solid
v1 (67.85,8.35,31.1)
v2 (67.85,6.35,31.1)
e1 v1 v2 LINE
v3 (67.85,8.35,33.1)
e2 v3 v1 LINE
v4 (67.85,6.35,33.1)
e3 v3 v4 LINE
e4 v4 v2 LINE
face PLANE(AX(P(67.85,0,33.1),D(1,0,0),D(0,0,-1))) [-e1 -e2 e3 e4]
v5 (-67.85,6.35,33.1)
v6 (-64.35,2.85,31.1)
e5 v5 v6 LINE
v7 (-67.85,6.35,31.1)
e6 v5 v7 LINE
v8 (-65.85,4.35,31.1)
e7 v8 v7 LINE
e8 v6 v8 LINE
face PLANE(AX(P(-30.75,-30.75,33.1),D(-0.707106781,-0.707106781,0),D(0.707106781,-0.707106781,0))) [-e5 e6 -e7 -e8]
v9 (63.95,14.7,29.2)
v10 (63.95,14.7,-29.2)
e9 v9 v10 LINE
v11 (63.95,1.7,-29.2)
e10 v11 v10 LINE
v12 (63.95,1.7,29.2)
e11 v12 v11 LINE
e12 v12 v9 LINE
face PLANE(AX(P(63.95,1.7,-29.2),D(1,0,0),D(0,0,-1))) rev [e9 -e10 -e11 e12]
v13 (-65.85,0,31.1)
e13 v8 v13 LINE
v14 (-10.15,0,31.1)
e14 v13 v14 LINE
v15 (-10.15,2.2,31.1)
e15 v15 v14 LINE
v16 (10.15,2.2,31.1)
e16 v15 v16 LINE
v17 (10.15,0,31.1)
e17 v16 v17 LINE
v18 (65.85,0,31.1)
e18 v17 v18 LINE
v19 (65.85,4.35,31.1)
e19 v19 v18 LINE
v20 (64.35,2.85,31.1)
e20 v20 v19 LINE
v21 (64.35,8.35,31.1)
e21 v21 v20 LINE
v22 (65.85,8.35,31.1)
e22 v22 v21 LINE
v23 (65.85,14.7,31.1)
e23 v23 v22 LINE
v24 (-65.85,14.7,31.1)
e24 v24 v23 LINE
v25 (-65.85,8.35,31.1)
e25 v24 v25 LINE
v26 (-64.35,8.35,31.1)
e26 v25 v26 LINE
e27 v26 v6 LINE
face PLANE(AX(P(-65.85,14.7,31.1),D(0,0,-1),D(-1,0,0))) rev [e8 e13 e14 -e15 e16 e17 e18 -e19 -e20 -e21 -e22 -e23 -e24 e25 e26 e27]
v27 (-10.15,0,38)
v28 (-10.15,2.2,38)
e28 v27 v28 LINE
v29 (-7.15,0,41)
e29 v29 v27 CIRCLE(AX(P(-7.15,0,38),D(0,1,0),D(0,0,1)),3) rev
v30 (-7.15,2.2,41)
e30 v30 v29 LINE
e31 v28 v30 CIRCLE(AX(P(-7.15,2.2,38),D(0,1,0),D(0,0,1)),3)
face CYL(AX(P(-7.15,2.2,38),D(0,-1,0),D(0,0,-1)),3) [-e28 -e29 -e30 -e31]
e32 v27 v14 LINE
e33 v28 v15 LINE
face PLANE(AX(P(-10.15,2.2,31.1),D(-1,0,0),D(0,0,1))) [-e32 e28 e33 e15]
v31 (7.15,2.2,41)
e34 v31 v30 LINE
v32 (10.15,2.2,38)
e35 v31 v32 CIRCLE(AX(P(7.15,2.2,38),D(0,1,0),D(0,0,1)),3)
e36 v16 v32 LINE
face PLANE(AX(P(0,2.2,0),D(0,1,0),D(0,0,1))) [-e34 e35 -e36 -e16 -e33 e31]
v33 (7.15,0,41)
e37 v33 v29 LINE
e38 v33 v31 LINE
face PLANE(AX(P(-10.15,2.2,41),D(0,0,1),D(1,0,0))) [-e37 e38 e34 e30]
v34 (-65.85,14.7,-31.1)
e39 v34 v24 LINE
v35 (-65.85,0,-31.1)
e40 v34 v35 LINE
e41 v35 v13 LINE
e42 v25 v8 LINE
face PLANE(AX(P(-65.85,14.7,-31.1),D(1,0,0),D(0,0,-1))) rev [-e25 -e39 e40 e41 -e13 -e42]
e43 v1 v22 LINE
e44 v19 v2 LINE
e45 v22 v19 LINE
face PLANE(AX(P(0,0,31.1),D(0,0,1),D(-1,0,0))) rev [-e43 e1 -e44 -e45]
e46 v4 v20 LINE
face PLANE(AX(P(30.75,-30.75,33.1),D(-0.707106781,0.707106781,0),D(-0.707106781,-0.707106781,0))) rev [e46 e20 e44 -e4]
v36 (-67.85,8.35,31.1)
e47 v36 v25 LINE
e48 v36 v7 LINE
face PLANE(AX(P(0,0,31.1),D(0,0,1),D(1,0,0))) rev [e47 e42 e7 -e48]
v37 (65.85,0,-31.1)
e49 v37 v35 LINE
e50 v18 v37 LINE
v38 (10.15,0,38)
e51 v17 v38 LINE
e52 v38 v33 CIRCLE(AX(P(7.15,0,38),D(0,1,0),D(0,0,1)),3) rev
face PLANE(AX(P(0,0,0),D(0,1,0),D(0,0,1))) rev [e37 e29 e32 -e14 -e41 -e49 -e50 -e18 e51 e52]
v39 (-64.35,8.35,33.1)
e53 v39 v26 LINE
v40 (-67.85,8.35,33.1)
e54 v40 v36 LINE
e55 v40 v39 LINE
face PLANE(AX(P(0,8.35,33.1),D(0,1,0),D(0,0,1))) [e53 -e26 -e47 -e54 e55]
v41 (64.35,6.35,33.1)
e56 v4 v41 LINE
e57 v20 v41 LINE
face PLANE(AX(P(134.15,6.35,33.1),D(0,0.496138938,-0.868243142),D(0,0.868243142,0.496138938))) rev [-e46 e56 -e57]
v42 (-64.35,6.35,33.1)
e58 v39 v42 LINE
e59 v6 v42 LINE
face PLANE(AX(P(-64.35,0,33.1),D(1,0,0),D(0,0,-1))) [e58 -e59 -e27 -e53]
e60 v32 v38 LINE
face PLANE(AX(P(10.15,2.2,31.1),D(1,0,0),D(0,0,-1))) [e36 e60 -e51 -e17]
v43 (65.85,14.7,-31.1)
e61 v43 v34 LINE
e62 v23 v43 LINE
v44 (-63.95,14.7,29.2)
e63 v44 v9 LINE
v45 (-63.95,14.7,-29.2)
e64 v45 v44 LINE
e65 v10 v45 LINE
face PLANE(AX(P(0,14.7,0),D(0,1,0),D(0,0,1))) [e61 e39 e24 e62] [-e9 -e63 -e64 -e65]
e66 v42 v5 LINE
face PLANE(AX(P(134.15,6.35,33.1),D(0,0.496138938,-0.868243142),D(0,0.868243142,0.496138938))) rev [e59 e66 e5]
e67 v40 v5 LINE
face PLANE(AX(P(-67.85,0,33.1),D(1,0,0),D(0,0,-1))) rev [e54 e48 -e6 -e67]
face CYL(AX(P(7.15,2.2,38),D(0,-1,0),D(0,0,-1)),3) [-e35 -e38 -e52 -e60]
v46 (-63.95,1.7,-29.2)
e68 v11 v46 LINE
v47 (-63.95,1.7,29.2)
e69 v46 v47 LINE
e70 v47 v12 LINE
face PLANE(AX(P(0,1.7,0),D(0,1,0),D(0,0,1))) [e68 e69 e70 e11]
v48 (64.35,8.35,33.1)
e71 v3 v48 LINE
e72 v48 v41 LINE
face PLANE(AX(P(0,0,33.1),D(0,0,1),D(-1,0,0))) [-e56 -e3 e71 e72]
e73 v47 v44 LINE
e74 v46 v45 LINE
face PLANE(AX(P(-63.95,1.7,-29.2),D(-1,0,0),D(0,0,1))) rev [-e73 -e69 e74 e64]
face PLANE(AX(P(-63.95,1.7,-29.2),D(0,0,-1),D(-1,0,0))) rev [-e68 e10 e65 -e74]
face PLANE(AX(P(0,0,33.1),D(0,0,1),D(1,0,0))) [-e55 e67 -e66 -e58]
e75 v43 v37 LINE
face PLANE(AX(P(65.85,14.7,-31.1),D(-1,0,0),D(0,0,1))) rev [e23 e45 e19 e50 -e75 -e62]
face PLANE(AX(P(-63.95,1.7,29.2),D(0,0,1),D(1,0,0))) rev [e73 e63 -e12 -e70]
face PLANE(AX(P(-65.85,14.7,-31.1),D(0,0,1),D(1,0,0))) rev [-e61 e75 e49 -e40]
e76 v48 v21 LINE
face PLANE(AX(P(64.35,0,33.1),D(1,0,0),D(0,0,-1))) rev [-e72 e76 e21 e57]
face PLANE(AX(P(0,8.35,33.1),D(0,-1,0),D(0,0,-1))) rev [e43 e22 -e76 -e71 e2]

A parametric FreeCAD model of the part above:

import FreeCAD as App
import Part
import Sketcher
from FreeCAD import Vector
Q = App.Units.Quantity


def edges_at(feature, points):
    """Names of the edges that pass closest to the given points."""
    edges = feature.Shape.Edges
    near = lambda p: min(range(len(edges)), key=lambda i: edges[i].distToShape(Part.Vertex(*p))[0])
    return sorted({f"Edge{near(p) + 1}" for p in points})


def add_polygon(sketch, points):
    """Adds a closed chain of lines whose ends are joined by coincident constraints."""
    first, n = sketch.GeometryCount, len(points)
    for a, b in zip(points, points[1:] + points[:1]):
        sketch.addGeometry(Part.LineSegment(App.Vector(*a, 0), App.Vector(*b, 0)), False)
    for i in range(n):
        sketch.addConstraint(Sketcher.Constraint("Coincident", first + i, 2, first + (i + 1) % n, 1))

doc = App.newDocument("Part")
body = doc.addObject("PartDesign::Body", "Body")

sketch1 = body.newObject("Sketcher::SketchObject", "Sketch")
sketch1.AttachmentSupport = (doc.getObject("XZ_Plane"), [""])
sketch1.MapMode = "FlatFace"
add_polygon(sketch1, [(-66, -31), (-66, 31), (66, 31), (66, -31)])
sketch1.addConstraint([
    Sketcher.Constraint("Vertical", 0),
    Sketcher.Constraint("Horizontal", 1),
    Sketcher.Constraint("Vertical", 2),
    Sketcher.Constraint("Horizontal", 3),
    Sketcher.Constraint("Symmetric", 0, 2, 2, 2, -1, 1),
    Sketcher.Constraint("DistanceX", 1, 1, 1, 2, Q("131.7 mm")),
    Sketcher.Constraint("DistanceY", 0, 1, 0, 2, Q("62.2 mm")),
])
pad1 = body.newObject("PartDesign::Pad", "Pad")
pad1.Profile = sketch1
pad1.Length = 14.7
pad1.Reversed = True

sketch2 = body.newObject("Sketcher::SketchObject", "Sketch001")
sketch2.AttachmentSupport = (doc.getObject("XZ_Plane"), [""])
sketch2.MapMode = "FlatFace"
sketch2.AttachmentOffset = App.Placement(Vector(0, 0, -14.7), App.Rotation())
add_polygon(sketch2, [(-64, -29), (-64, 29), (64, 29), (64, -29)])
sketch2.addConstraint([
    Sketcher.Constraint("Vertical", 0),
    Sketcher.Constraint("Horizontal", 1),
    Sketcher.Constraint("Vertical", 2),
    Sketcher.Constraint("Horizontal", 3),
    Sketcher.Constraint("Symmetric", 0, 2, 2, 2, -1, 1),
    Sketcher.Constraint("DistanceX", 1, 1, 1, 2, Q("127.9 mm")),
    Sketcher.Constraint("DistanceY", 0, 1, 0, 2, Q("58.4 mm")),
])
pocket1 = body.newObject("PartDesign::Pocket", "Pocket")
pocket1.Profile = sketch2
pocket1.Length = 13
pocket1.Reversed = True

sketch3 = body.newObject("Sketcher::SketchObject", "Sketch002")
sketch3.AttachmentSupport = (doc.getObject("XZ_Plane"), [""])
sketch3.MapMode = "FlatFace"
add_polygon(sketch3, [(-10, 41), (-10, 31), (10, 31), (10, 41)])
sketch3.addConstraint([
    Sketcher.Constraint("Vertical", 0),
    Sketcher.Constraint("Horizontal", 1),
    Sketcher.Constraint("Vertical", 2),
    Sketcher.Constraint("Horizontal", 3),
    Sketcher.Constraint("DistanceX", 1, 1, 1, 2, Q("20.3 mm")),
    Sketcher.Constraint("DistanceY", 0, 2, 0, 1, Q("9.9 mm")),
    Sketcher.Constraint("DistanceY", -1, 1, 2, 2, Q("41 mm")),
    Sketcher.Constraint("DistanceX", 0, 2, -1, 1, Q("10.15 mm")),
])
pad2 = body.newObject("PartDesign::Pad", "Pad001")
pad2.Profile = sketch3
pad2.Length = 2.2
pad2.Reversed = True
doc.recompute()

fillet = body.newObject("PartDesign::Fillet", "Fillet")
fillet.Base = (pad2, edges_at(pad2, [(-10.15, 1.1, 41), (10.15, 1.1, 41)]))
fillet.Radius = 3

sketch4 = body.newObject("Sketcher::SketchObject", "Sketch003")
sketch4.AttachmentSupport = (doc.getObject("XY_Plane"), [""])
sketch4.MapMode = "FlatFace"
sketch4.AttachmentOffset = App.Placement(Vector(0, 0, 31.1), App.Rotation())
add_polygon(sketch4, [(-64.3, 8.3), (-67.8, 8.3), (-67.8, 6.3), (-64.3, 2.9)])
sketch4.addConstraint([
    Sketcher.Constraint("Horizontal", 0),
    Sketcher.Constraint("Vertical", 1),
    Sketcher.Constraint("Vertical", 3),
    Sketcher.Constraint("DistanceY", 1, 2, 1, 1, Q("2 mm")),
    Sketcher.Constraint("Angle", 2, Q("-45 deg")),
    Sketcher.Constraint("DistanceX", 0, 2, 0, 1, Q("3.5 mm")),
    Sketcher.Constraint("DistanceX", 0, 2, -1, 1, Q("67.85 mm")),
    Sketcher.Constraint("DistanceY", -1, 1, 0, 2, Q("8.35 mm")),
])
pad3 = body.newObject("PartDesign::Pad", "Pad002")
pad3.Profile = sketch4
pad3.Length = 2
doc.recompute()

mirrored = body.newObject("PartDesign::Mirrored", "Mirrored")
mirrored.Originals = [pad3]
mirrored.MirrorPlane = (doc.getObject("YZ_Plane"), [""])
body.Tip = mirrored

sketch5 = body.newObject("Sketcher::SketchObject", "Sketch004")
sketch5.AttachmentSupport = (doc.getObject("YZ_Plane"), [""])
sketch5.MapMode = "FlatFace"
sketch5.AttachmentOffset = App.Placement(Vector(0, 0, -65.85), App.Rotation())
add_polygon(sketch5, [(6.3, 33.1), (2.9, 31.1), (2.9, 33.1)])
sketch5.addConstraint([
    Sketcher.Constraint("Vertical", 1),
    Sketcher.Constraint("Horizontal", 2),
    Sketcher.Constraint("DistanceY", 1, 1, 1, 2, Q("2 mm")),
    Sketcher.Constraint("DistanceX", 2, 1, 2, 2, Q("3.5 mm")),
    Sketcher.Constraint("DistanceY", -1, 1, 0, 2, Q("31.1 mm")),
    Sketcher.Constraint("DistanceX", -1, 1, 0, 2, Q("2.85 mm")),
])
pocket2 = body.newObject("PartDesign::Pocket", "Pocket001")
pocket2.Profile = sketch5
pocket2.Length = 400
pocket2.Midplane = True

doc.recompute()
